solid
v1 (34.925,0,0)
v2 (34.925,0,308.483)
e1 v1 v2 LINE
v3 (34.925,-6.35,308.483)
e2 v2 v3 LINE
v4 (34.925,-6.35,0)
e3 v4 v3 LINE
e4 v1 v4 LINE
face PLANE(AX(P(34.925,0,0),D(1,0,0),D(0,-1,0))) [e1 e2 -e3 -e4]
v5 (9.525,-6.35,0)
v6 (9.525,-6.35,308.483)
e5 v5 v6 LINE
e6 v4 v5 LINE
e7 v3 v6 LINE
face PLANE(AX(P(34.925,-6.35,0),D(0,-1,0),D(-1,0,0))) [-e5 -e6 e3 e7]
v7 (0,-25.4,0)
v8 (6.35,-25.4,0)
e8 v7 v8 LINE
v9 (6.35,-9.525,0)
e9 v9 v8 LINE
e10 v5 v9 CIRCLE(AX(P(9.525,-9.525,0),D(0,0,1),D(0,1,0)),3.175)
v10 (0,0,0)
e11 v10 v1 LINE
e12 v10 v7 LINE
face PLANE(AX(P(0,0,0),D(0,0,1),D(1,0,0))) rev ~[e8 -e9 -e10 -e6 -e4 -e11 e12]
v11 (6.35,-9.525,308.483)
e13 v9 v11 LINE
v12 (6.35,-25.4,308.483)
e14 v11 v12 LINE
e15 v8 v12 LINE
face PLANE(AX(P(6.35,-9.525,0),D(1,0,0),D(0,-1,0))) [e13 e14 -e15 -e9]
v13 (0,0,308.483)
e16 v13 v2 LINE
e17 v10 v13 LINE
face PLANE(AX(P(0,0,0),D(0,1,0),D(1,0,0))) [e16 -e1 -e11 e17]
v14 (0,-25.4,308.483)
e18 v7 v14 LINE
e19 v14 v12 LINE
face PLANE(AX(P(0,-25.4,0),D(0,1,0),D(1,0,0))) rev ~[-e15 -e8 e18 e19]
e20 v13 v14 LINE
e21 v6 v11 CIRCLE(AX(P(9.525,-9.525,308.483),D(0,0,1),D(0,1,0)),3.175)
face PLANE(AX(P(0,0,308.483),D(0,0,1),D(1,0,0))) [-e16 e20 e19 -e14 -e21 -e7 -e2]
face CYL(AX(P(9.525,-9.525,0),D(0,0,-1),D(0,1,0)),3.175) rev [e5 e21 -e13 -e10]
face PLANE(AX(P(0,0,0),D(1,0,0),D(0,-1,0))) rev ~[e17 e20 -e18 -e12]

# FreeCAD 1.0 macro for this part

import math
import FreeCAD as App
import Part
import Sketcher
Q = App.Units.Quantity

doc = App.newDocument("Part")
body = doc.addObject("PartDesign::Body", "Body")

# Sketch on XY plane
sketch1 = doc.addObject("Sketcher::SketchObject", "Sketch")
body.addObject(sketch1)
sketch1.AttachmentSupport = (doc.XY_Plane, [""])
sketch1.MapMode = "FlatFace"
sketch1.addGeometry([
    Part.LineSegment(App.Vector(34.9, 0, 0), App.Vector(0, 0, 0)),  # 0
    Part.LineSegment(App.Vector(0, 0, 0), App.Vector(0, -25.4, 0)),  # 1
    Part.LineSegment(App.Vector(0, -25.4, 0), App.Vector(6.3, -25.4, 0)),  # 2
    Part.LineSegment(App.Vector(6.3, -25.4, 0), App.Vector(6.3, -9.5, 0)),  # 3
    Part.ArcOfCircle(Part.Circle(App.Vector(9.5, -9.5, 0), App.Vector(0, 0, 1), 3.2), math.radians(90), math.radians(180)),  # 4
    Part.LineSegment(App.Vector(9.5, -6.3, 0), App.Vector(34.9, -6.3, 0)),  # 5
    Part.LineSegment(App.Vector(34.9, -6.3, 0), App.Vector(34.9, 0, 0)),  # 6
], False)
sketch1.addConstraint([
    Sketcher.Constraint("Coincident", 0, 2, 1, 1),
    Sketcher.Constraint("Coincident", 1, 2, 2, 1),
    Sketcher.Constraint("Coincident", 2, 2, 3, 1),
    Sketcher.Constraint("Tangent", 3, 2, 4, 2),
    Sketcher.Constraint("Tangent", 4, 1, 5, 1),
    Sketcher.Constraint("Coincident", 5, 2, 6, 1),
    Sketcher.Constraint("Coincident", 6, 2, 0, 1),
    Sketcher.Constraint("Horizontal", 0),
    Sketcher.Constraint("Vertical", 1),
    Sketcher.Constraint("Horizontal", 2),
    Sketcher.Constraint("Vertical", 3),
    Sketcher.Constraint("Horizontal", 5),
    Sketcher.Constraint("Vertical", 6),
    Sketcher.Constraint("Coincident", 0, 2, -1, 1),
    Sketcher.Constraint("Equal", 5, 1),
    Sketcher.Constraint("Equal", 2, 6),
    Sketcher.Constraint("DistanceX", 5, 1, 5, 2, Q("1 in")),
    Sketcher.Constraint("Radius", 4, Q("0.125 in")),
    Sketcher.Constraint("DistanceX", 2, 1, 2, 2, Q("0.25 in")),
])
pad1 = doc.addObject("PartDesign::Pad", "Pad")
body.addObject(pad1)
pad1.Profile = sketch1
pad1.Length = Q("12.145 in")

doc.recompute()
